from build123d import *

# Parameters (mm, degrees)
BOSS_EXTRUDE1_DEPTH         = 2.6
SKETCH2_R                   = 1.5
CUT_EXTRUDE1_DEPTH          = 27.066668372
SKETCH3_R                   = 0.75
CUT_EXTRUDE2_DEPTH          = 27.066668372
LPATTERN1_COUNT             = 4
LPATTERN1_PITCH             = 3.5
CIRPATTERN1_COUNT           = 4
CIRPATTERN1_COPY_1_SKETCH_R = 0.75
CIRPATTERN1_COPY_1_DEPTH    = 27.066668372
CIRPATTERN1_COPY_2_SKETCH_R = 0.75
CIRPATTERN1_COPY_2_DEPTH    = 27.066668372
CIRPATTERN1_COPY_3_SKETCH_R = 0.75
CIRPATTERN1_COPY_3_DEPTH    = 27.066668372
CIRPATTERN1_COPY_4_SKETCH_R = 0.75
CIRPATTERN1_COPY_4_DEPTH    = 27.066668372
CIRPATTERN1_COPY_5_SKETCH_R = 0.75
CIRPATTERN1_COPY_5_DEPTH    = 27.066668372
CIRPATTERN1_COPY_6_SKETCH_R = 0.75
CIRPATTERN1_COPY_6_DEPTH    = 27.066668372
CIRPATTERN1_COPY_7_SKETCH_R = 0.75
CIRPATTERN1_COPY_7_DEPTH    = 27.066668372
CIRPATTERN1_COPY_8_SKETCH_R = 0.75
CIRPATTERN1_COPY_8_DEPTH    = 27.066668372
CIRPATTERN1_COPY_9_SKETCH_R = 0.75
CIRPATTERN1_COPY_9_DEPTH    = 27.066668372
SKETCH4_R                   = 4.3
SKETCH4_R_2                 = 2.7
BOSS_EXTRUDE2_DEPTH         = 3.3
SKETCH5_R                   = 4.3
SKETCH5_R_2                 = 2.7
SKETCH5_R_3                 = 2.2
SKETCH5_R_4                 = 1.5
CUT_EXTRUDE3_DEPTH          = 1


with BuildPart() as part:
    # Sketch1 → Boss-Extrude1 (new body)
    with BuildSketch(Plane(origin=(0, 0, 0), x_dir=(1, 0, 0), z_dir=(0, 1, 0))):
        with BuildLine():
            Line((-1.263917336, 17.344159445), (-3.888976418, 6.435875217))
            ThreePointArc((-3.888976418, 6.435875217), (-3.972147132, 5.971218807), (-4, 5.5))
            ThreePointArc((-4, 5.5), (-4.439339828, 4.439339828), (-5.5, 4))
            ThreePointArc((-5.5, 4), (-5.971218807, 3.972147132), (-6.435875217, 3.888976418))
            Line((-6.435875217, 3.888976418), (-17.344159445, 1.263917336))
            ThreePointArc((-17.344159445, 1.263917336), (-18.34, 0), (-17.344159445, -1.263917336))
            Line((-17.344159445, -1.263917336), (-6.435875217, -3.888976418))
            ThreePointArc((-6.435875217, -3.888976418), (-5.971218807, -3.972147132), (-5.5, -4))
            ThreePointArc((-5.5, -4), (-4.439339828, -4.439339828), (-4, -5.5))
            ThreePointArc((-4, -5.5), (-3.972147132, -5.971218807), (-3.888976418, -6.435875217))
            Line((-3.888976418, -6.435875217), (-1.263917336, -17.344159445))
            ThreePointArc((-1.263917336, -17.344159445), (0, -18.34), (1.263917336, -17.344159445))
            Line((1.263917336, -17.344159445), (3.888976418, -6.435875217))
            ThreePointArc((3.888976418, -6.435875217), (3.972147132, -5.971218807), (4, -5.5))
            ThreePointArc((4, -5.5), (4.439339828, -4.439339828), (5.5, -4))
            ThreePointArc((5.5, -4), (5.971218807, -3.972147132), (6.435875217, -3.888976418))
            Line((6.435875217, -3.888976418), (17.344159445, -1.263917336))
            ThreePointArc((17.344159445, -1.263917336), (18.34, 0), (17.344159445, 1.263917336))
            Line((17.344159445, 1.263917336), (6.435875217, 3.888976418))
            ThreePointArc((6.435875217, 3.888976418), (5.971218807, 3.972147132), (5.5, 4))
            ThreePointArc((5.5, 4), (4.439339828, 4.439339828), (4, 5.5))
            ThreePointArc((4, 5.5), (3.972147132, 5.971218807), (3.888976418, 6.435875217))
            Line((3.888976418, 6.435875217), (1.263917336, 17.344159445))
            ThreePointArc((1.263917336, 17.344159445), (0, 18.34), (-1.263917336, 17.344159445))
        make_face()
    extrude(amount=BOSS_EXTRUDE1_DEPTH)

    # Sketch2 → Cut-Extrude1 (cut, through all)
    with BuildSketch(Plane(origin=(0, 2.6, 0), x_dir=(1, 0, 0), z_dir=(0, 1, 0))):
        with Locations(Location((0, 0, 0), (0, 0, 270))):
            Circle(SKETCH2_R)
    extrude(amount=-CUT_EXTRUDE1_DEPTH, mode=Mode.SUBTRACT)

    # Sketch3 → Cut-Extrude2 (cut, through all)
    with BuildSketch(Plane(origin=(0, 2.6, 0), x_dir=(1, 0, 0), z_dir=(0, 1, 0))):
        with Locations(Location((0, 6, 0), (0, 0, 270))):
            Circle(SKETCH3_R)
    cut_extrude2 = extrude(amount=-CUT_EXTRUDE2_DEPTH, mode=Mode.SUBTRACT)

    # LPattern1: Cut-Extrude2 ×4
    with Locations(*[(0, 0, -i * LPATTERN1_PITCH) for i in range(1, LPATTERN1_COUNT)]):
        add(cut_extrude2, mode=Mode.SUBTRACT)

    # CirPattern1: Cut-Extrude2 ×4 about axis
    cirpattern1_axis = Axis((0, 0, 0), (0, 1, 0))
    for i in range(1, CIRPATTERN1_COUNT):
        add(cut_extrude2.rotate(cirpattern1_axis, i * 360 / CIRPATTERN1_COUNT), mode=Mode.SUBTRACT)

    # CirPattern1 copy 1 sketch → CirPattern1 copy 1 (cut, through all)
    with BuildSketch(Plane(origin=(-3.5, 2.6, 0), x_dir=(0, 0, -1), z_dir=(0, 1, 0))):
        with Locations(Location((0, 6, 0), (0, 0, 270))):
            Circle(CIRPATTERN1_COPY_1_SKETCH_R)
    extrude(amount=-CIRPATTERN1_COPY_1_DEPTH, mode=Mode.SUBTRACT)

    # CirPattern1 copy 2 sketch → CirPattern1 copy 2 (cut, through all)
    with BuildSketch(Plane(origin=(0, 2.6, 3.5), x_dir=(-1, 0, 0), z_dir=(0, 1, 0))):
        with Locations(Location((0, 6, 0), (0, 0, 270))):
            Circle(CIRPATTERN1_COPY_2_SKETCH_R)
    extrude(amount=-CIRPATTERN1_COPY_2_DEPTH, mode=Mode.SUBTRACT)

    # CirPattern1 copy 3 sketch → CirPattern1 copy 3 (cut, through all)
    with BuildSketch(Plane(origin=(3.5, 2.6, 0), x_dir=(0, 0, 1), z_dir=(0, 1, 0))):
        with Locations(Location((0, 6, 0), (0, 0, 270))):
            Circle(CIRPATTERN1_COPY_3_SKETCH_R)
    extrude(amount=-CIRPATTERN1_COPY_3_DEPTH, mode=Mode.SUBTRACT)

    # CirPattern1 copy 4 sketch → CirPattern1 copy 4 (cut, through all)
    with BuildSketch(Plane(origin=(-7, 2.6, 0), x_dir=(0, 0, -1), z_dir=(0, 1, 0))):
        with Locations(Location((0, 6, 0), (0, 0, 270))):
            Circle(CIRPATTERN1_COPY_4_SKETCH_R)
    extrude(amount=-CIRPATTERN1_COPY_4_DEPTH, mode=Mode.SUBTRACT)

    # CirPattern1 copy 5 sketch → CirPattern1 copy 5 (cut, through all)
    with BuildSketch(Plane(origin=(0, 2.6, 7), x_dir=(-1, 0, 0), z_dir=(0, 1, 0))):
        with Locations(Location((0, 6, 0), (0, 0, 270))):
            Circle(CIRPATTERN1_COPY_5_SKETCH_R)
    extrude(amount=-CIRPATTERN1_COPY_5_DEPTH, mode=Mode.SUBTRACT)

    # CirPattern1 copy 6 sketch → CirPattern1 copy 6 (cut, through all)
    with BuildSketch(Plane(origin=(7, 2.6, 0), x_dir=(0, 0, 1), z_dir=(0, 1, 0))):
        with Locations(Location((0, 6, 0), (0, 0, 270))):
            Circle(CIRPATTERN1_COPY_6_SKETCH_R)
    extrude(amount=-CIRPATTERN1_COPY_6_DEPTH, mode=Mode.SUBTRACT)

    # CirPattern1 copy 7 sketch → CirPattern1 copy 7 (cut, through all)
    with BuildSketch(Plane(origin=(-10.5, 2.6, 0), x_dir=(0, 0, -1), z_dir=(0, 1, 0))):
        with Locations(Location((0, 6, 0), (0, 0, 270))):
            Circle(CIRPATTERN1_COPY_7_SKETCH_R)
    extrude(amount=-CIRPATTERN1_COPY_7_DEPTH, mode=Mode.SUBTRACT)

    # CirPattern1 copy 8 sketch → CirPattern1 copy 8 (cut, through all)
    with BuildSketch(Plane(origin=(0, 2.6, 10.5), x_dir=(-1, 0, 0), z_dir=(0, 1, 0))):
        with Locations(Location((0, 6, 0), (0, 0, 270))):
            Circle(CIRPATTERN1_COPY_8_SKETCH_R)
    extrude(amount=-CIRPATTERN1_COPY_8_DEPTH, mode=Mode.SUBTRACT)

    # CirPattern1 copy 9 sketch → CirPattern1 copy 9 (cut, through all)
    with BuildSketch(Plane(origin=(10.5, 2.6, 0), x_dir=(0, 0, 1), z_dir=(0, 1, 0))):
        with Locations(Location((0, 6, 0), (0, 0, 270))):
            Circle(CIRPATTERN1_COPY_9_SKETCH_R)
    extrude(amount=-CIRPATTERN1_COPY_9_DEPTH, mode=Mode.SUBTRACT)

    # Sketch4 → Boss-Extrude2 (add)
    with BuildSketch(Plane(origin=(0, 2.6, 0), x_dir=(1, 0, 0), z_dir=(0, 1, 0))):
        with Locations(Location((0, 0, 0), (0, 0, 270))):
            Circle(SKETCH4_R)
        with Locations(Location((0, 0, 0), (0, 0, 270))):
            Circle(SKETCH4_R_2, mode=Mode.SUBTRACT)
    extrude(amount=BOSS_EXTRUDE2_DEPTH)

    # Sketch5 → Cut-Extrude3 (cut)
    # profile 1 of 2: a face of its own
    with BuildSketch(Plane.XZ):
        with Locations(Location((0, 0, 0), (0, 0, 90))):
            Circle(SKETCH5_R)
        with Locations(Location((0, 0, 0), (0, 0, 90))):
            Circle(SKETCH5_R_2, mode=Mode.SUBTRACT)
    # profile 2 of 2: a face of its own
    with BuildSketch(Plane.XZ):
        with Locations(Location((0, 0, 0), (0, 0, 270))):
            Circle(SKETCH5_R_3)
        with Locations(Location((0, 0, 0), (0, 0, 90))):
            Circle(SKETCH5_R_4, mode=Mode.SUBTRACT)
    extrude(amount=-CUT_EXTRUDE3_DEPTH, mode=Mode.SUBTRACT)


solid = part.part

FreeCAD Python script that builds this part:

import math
import FreeCAD as App
import Part
import Sketcher

doc = App.newDocument("Part")
params = doc.addObject("Spreadsheet::Sheet", "Params")
for row, (alias, value) in enumerate([
    ("sketch1_radius", "4 mm"),
    ("sketch1_radius2", "1.5 mm"),
    ("sketch1_radius3", "1.3 mm"),
    ("pad1_length", "2.6 mm"),
    ("sketch2_diameter", "3 mm"),
    ("sketch3_diameter", "1.5 mm"),
    ("linearpattern_pitch", "3.5 mm"),
    ("sketch4_diameter", "1.5 mm"),
    ("sketch5_diameter", "1.5 mm"),
    ("sketch6_diameter", "1.5 mm"),
    ("sketch7_diameter", "1.5 mm"),
    ("sketch8_diameter", "1.5 mm"),
    ("sketch9_diameter", "1.5 mm"),
    ("sketch10_diameter", "1.5 mm"),
    ("sketch11_diameter", "1.5 mm"),
    ("sketch12_diameter", "1.5 mm"),
    ("sketch13_diameter", "8.6 mm"),
    ("sketch13_diameter2", "5.4 mm"),
    ("pad2_length", "3.3 mm"),
    ("sketch14_diameter", "3 mm"),
    ("sketch14_diameter2", "8.6 mm"),
    ("sketch14_diameter3", "5.4 mm"),
    ("sketch14_diameter4", "4.4 mm"),
    ("pocket12_length", "1 mm"),
], start=1):
    params.set(f"A{row}", alias)
    params.set(f"B{row}", "=" + value)
    params.setAlias(f"B{row}", alias)

body = doc.addObject("PartDesign::Body", "Body")

sketch1 = body.newObject("Sketcher::SketchObject", "Sketch")
sketch1.AttachmentSupport = (doc.getObject("XZ_Plane"), [""])
sketch1.MapMode = "FlatFace"
sketch1.addGeometry([
    Part.LineSegment(App.Vector(-1.3, -17.3, 0), App.Vector(-3.9, -6.4, 0)),
    Part.ArcOfCircle(Part.Circle(App.Vector(0, -5.5, 0), App.Vector(0, 0, 1), 4), math.radians(180), math.radians(193.53)),
    Part.ArcOfCircle(Part.Circle(App.Vector(-5.5, -5.5, 0), App.Vector(0, 0, 1), 1.5), math.radians(0), math.radians(90)),
    Part.ArcOfCircle(Part.Circle(App.Vector(-5.5, 0, 0), App.Vector(0, 0, 1), 4), math.radians(-103.53), math.radians(-90)),
    Part.LineSegment(App.Vector(-6.4, -3.9, 0), App.Vector(-17.3, -1.3, 0)),
    Part.ArcOfCircle(Part.Circle(App.Vector(-17, 0, 0), App.Vector(0, 0, 1), 1.3), math.radians(104), math.radians(256)),
    Part.LineSegment(App.Vector(-17.3, 1.3, 0), App.Vector(-6.4, 3.9, 0)),
    Part.ArcOfCircle(Part.Circle(App.Vector(-5.5, 0, 0), App.Vector(0, 0, 1), 4), math.radians(90), math.radians(103.53)),
    Part.ArcOfCircle(Part.Circle(App.Vector(-5.5, 5.5, 0), App.Vector(0, 0, 1), 1.5), math.radians(-90), math.radians(0)),
    Part.ArcOfCircle(Part.Circle(App.Vector(0, 5.5, 0), App.Vector(0, 0, 1), 4), math.radians(166.47), math.radians(180)),
    Part.LineSegment(App.Vector(-3.9, 6.4, 0), App.Vector(-1.3, 17.3, 0)),
    Part.ArcOfCircle(Part.Circle(App.Vector(0, 17, 0), App.Vector(0, 0, 1), 1.3), math.radians(14), math.radians(166)),
    Part.LineSegment(App.Vector(1.3, 17.3, 0), App.Vector(3.9, 6.4, 0)),
    Part.ArcOfCircle(Part.Circle(App.Vector(0, 5.5, 0), App.Vector(0, 0, 1), 4), math.radians(0), math.radians(13.53)),
    Part.ArcOfCircle(Part.Circle(App.Vector(5.5, 5.5, 0), App.Vector(0, 0, 1), 1.5), math.radians(180), math.radians(270)),
    Part.ArcOfCircle(Part.Circle(App.Vector(5.5, 0, 0), App.Vector(0, 0, 1), 4), math.radians(76.47), math.radians(90)),
    Part.LineSegment(App.Vector(6.4, 3.9, 0), App.Vector(17.3, 1.3, 0)),
    Part.ArcOfCircle(Part.Circle(App.Vector(17, 0, 0), App.Vector(0, 0, 1), 1.3), math.radians(-76), math.radians(76)),
    Part.LineSegment(App.Vector(17.3, -1.3, 0), App.Vector(6.4, -3.9, 0)),
    Part.ArcOfCircle(Part.Circle(App.Vector(5.5, 0, 0), App.Vector(0, 0, 1), 4), math.radians(-90), math.radians(-76.47)),
    Part.ArcOfCircle(Part.Circle(App.Vector(5.5, -5.5, 0), App.Vector(0, 0, 1), 1.5), math.radians(90), math.radians(180)),
    Part.ArcOfCircle(Part.Circle(App.Vector(0, -5.5, 0), App.Vector(0, 0, 1), 4), math.radians(-13.53), math.radians(0)),
    Part.LineSegment(App.Vector(3.9, -6.4, 0), App.Vector(1.3, -17.3, 0)),
    Part.ArcOfCircle(Part.Circle(App.Vector(0, -17, 0), App.Vector(0, 0, 1), 1.3), math.radians(-166), math.radians(-14)),
], False)
sketch1.addConstraint([
    Sketcher.Constraint("Tangent", 0, 2, 1, 2),
    Sketcher.Constraint("Tangent", 1, 1, 2, 1),
    Sketcher.Constraint("Tangent", 2, 2, 3, 2),
    Sketcher.Constraint("Tangent", 3, 1, 4, 1),
    Sketcher.Constraint("Tangent", 4, 2, 5, 2),
    Sketcher.Constraint("Tangent", 5, 1, 6, 1),
    Sketcher.Constraint("Tangent", 6, 2, 7, 2),
    Sketcher.Constraint("Tangent", 7, 1, 8, 1),
    Sketcher.Constraint("Tangent", 8, 2, 9, 2),
    Sketcher.Constraint("Tangent", 9, 1, 10, 1),
    Sketcher.Constraint("Tangent", 10, 2, 11, 2),
    Sketcher.Constraint("Tangent", 11, 1, 12, 1),
    Sketcher.Constraint("Tangent", 12, 2, 13, 2),
    Sketcher.Constraint("Tangent", 13, 1, 14, 1),
    Sketcher.Constraint("Tangent", 14, 2, 15, 2),
    Sketcher.Constraint("Tangent", 15, 1, 16, 1),
    Sketcher.Constraint("Tangent", 16, 2, 17, 2),
    Sketcher.Constraint("Tangent", 17, 1, 18, 1),
    Sketcher.Constraint("Tangent", 18, 2, 19, 2),
    Sketcher.Constraint("Tangent", 19, 1, 20, 1),
    Sketcher.Constraint("Tangent", 20, 2, 21, 2),
    Sketcher.Constraint("Tangent", 21, 1, 22, 1),
    Sketcher.Constraint("Tangent", 22, 2, 23, 2),
    Sketcher.Constraint("Tangent", 23, 1, 0, 1),
    Sketcher.Constraint("Coincident", 7, 3, 3, 3),
    Sketcher.Constraint("Coincident", 13, 3, 9, 3),
    Sketcher.Constraint("Coincident", 19, 3, 15, 3),
    Sketcher.Constraint("Coincident", 21, 3, 1, 3),
    Sketcher.Constraint("Equal", 1, 3),
    Sketcher.Constraint("Equal", 3, 7),
    Sketcher.Constraint("Equal", 2, 8),
    Sketcher.Constraint("Equal", 7, 9),
    Sketcher.Constraint("Equal", 5, 11),
    Sketcher.Constraint("Equal", 9, 13),
    Sketcher.Constraint("Equal", 8, 14),
    Sketcher.Constraint("Equal", 13, 15),
    Sketcher.Constraint("Equal", 11, 17),
    Sketcher.Constraint("Equal", 15, 19),
    Sketcher.Constraint("Equal", 14, 20),
    Sketcher.Constraint("Equal", 19, 21),
    Sketcher.Constraint("Equal", 17, 23),
    Sketcher.Constraint("Symmetric", 1, 3, 9, 3, -1, 1),
    Sketcher.Constraint("Symmetric", 3, 3, 15, 3, -1, 1),
    Sketcher.Constraint("Symmetric", 5, 3, 17, 3, -1, 1),
    Sketcher.Constraint("Symmetric", 11, 3, 23, 3, -1, 1),
    Sketcher.Constraint("Symmetric", 8, 3, 14, 3, -2),
    Sketcher.Constraint("PointOnObject", 5, 3, -1),
    Sketcher.Constraint("PointOnObject", 11, 3, -2),
    Sketcher.Constraint("Perpendicular", 0, 6),
    Sketcher.Constraint("Horizontal", 1, 3, 2, 3),
    Sketcher.Constraint("Vertical", 2, 3, 3, 3),
    Sketcher.Constraint("Radius", 1, 4.0),
    Sketcher.Constraint("Radius", 2, 1.5),
    Sketcher.Constraint("Radius", 5, 1.3),
    Sketcher.Constraint("DistanceX", 5, 3, -1, 1, 17.04),
])
sketch1.setExpression("Constraints[51]", "Params.sketch1_radius")
sketch1.setExpression("Constraints[52]", "Params.sketch1_radius2")
sketch1.setExpression("Constraints[53]", "Params.sketch1_radius3")
pad1 = body.newObject("PartDesign::Pad", "Pad")
pad1.Profile = sketch1
pad1.setExpression("Length", "Params.pad1_length")
pad1.Reversed = True

sketch2 = body.newObject("Sketcher::SketchObject", "Sketch001")
sketch2.AttachmentSupport = (doc.getObject("XZ_Plane"), [""])
sketch2.MapMode = "FlatFace"
sketch2.AttachmentOffset = App.Placement(App.Vector(0, 0, -2.6), App.Rotation())
sketch2.addGeometry(Part.Circle(App.Vector(0, 0, 0), App.Vector(0, 0, 1), 1.5), False)
sketch2.addConstraint([
    Sketcher.Constraint("Coincident", 0, 3, -1, 1),
    Sketcher.Constraint("Diameter", 0, 3.0),
])
sketch2.setExpression("Constraints[1]", "Params.sketch2_diameter")
pocket1 = body.newObject("PartDesign::Pocket", "Pocket")
pocket1.Profile = sketch2
pocket1.Type = "ThroughAll"
pocket1.Reversed = True

sketch3 = body.newObject("Sketcher::SketchObject", "Sketch002")
sketch3.AttachmentSupport = (doc.getObject("XZ_Plane"), [""])
sketch3.MapMode = "FlatFace"
sketch3.AttachmentOffset = App.Placement(App.Vector(0, 0, -2.6), App.Rotation())
sketch3.addGeometry(Part.Circle(App.Vector(0, -6, 0), App.Vector(0, 0, 1), 0.8), False)
sketch3.addConstraint([
    Sketcher.Constraint("PointOnObject", 0, 3, -2),
    Sketcher.Constraint("Diameter", 0, 1.5),
    Sketcher.Constraint("DistanceY", 0, 3, -1, 1, 6.0),
])
sketch3.setExpression("Constraints[1]", "Params.sketch3_diameter")
pocket2 = body.newObject("PartDesign::Pocket", "Pocket001")
pocket2.Profile = sketch3
pocket2.Type = "ThroughAll"
pocket2.Reversed = True
doc.recompute()

linearpattern = body.newObject("PartDesign::LinearPattern", "LinearPattern")
linearpattern.Originals = [pocket2]
linearpattern.Direction = (doc.getObject("Z_Axis"), [""])
linearpattern.Mode = "offset"
linearpattern.setExpression("Offset", "Params.linearpattern_pitch")
linearpattern.Occurrences = 4
linearpattern.Reversed = True
body.Tip = linearpattern
doc.recompute()

polarpattern = body.newObject("PartDesign::PolarPattern", "PolarPattern")
polarpattern.Originals = [pocket2]
polarpattern.Axis = (doc.getObject("Y_Axis"), [""])
polarpattern.Angle = 360
polarpattern.Occurrences = 4
body.Tip = polarpattern

sketch4 = body.newObject("Sketcher::SketchObject", "Sketch003")
sketch4.AttachmentSupport = (doc.getObject("XZ_Plane"), [""])
sketch4.MapMode = "FlatFace"
sketch4.AttachmentOffset = App.Placement(App.Vector(0, 0, -2.6), App.Rotation())
sketch4.addGeometry(Part.Circle(App.Vector(-9.5, 0, 0), App.Vector(0, 0, 1), 0.8), False)
sketch4.addConstraint([
    Sketcher.Constraint("PointOnObject", 0, 3, -1),
    Sketcher.Constraint("Diameter", 0, 1.5),
    Sketcher.Constraint("DistanceX", 0, 3, -1, 1, 9.5),
])
sketch4.setExpression("Constraints[1]", "Params.sketch4_diameter")
pocket3 = body.newObject("PartDesign::Pocket", "Pocket002")
pocket3.Profile = sketch4
pocket3.Type = "ThroughAll"
pocket3.Reversed = True

sketch5 = body.newObject("Sketcher::SketchObject", "Sketch004")
sketch5.AttachmentSupport = (doc.getObject("XZ_Plane"), [""])
sketch5.MapMode = "FlatFace"
sketch5.AttachmentOffset = App.Placement(App.Vector(0, 0, -2.6), App.Rotation())
sketch5.addGeometry(Part.Circle(App.Vector(0, 9.5, 0), App.Vector(0, 0, 1), 0.8), False)
sketch5.addConstraint([
    Sketcher.Constraint("PointOnObject", 0, 3, -2),
    Sketcher.Constraint("Diameter", 0, 1.5),
    Sketcher.Constraint("DistanceY", -1, 1, 0, 3, 9.5),
])
sketch5.setExpression("Constraints[1]", "Params.sketch5_diameter")
pocket4 = body.newObject("PartDesign::Pocket", "Pocket003")
pocket4.Profile = sketch5
pocket4.Type = "ThroughAll"
pocket4.Reversed = True

sketch6 = body.newObject("Sketcher::SketchObject", "Sketch005")
sketch6.AttachmentSupport = (doc.getObject("XZ_Plane"), [""])
sketch6.MapMode = "FlatFace"
sketch6.AttachmentOffset = App.Placement(App.Vector(0, 0, -2.6), App.Rotation())
sketch6.addGeometry(Part.Circle(App.Vector(9.5, 0, 0), App.Vector(0, 0, 1), 0.8), False)
sketch6.addConstraint([
    Sketcher.Constraint("PointOnObject", 0, 3, -1),
    Sketcher.Constraint("Diameter", 0, 1.5),
    Sketcher.Constraint("DistanceX", -1, 1, 0, 3, 9.5),
])
sketch6.setExpression("Constraints[1]", "Params.sketch6_diameter")
pocket5 = body.newObject("PartDesign::Pocket", "Pocket004")
pocket5.Profile = sketch6
pocket5.Type = "ThroughAll"
pocket5.Reversed = True

sketch7 = body.newObject("Sketcher::SketchObject", "Sketch006")
sketch7.AttachmentSupport = (doc.getObject("XZ_Plane"), [""])
sketch7.MapMode = "FlatFace"
sketch7.AttachmentOffset = App.Placement(App.Vector(0, 0, -2.6), App.Rotation())
sketch7.addGeometry(Part.Circle(App.Vector(-13, 0, 0), App.Vector(0, 0, 1), 0.8), False)
sketch7.addConstraint([
    Sketcher.Constraint("PointOnObject", 0, 3, -1),
    Sketcher.Constraint("Diameter", 0, 1.5),
    Sketcher.Constraint("DistanceX", 0, 3, -1, 1, 13.0),
])
sketch7.setExpression("Constraints[1]", "Params.sketch7_diameter")
pocket6 = body.newObject("PartDesign::Pocket", "Pocket005")
pocket6.Profile = sketch7
pocket6.Type = "ThroughAll"
pocket6.Reversed = True

sketch8 = body.newObject("Sketcher::SketchObject", "Sketch007")
sketch8.AttachmentSupport = (doc.getObject("XZ_Plane"), [""])
sketch8.MapMode = "FlatFace"
sketch8.AttachmentOffset = App.Placement(App.Vector(0, 0, -2.6), App.Rotation())
sketch8.addGeometry(Part.Circle(App.Vector(0, 13, 0), App.Vector(0, 0, 1), 0.8), False)
sketch8.addConstraint([
    Sketcher.Constraint("PointOnObject", 0, 3, -2),
    Sketcher.Constraint("Diameter", 0, 1.5),
    Sketcher.Constraint("DistanceY", -1, 1, 0, 3, 13.0),
])
sketch8.setExpression("Constraints[1]", "Params.sketch8_diameter")
pocket7 = body.newObject("PartDesign::Pocket", "Pocket006")
pocket7.Profile = sketch8
pocket7.Type = "ThroughAll"
pocket7.Reversed = True

sketch9 = body.newObject("Sketcher::SketchObject", "Sketch008")
sketch9.AttachmentSupport = (doc.getObject("XZ_Plane"), [""])
sketch9.MapMode = "FlatFace"
sketch9.AttachmentOffset = App.Placement(App.Vector(0, 0, -2.6), App.Rotation())
sketch9.addGeometry(Part.Circle(App.Vector(13, 0, 0), App.Vector(0, 0, 1), 0.8), False)
sketch9.addConstraint([
    Sketcher.Constraint("PointOnObject", 0, 3, -1),
    Sketcher.Constraint("Diameter", 0, 1.5),
    Sketcher.Constraint("DistanceX", -1, 1, 0, 3, 13.0),
])
sketch9.setExpression("Constraints[1]", "Params.sketch9_diameter")
pocket8 = body.newObject("PartDesign::Pocket", "Pocket007")
pocket8.Profile = sketch9
pocket8.Type = "ThroughAll"
pocket8.Reversed = True

sketch10 = body.newObject("Sketcher::SketchObject", "Sketch009")
sketch10.AttachmentSupport = (doc.getObject("XZ_Plane"), [""])
sketch10.MapMode = "FlatFace"
sketch10.AttachmentOffset = App.Placement(App.Vector(0, 0, -2.6), App.Rotation())
sketch10.addGeometry(Part.Circle(App.Vector(-16.5, 0, 0), App.Vector(0, 0, 1), 0.8), False)
sketch10.addConstraint([
    Sketcher.Constraint("PointOnObject", 0, 3, -1),
    Sketcher.Constraint("Diameter", 0, 1.5),
    Sketcher.Constraint("DistanceX", 0, 3, -1, 1, 16.5),
])
sketch10.setExpression("Constraints[1]", "Params.sketch10_diameter")
pocket9 = body.newObject("PartDesign::Pocket", "Pocket008")
pocket9.Profile = sketch10
pocket9.Type = "ThroughAll"
pocket9.Reversed = True

sketch11 = body.newObject("Sketcher::SketchObject", "Sketch010")
sketch11.AttachmentSupport = (doc.getObject("XZ_Plane"), [""])
sketch11.MapMode = "FlatFace"
sketch11.AttachmentOffset = App.Placement(App.Vector(0, 0, -2.6), App.Rotation())
sketch11.addGeometry(Part.Circle(App.Vector(0, 16.5, 0), App.Vector(0, 0, 1), 0.8), False)
sketch11.addConstraint([
    Sketcher.Constraint("PointOnObject", 0, 3, -2),
    Sketcher.Constraint("Diameter", 0, 1.5),
    Sketcher.Constraint("DistanceY", -1, 1, 0, 3, 16.5),
])
sketch11.setExpression("Constraints[1]", "Params.sketch11_diameter")
pocket10 = body.newObject("PartDesign::Pocket", "Pocket009")
pocket10.Profile = sketch11
pocket10.Type = "ThroughAll"
pocket10.Reversed = True

sketch12 = body.newObject("Sketcher::SketchObject", "Sketch011")
sketch12.AttachmentSupport = (doc.getObject("XZ_Plane"), [""])
sketch12.MapMode = "FlatFace"
sketch12.AttachmentOffset = App.Placement(App.Vector(0, 0, -2.6), App.Rotation())
sketch12.addGeometry(Part.Circle(App.Vector(16.5, 0, 0), App.Vector(0, 0, 1), 0.8), False)
sketch12.addConstraint([
    Sketcher.Constraint("PointOnObject", 0, 3, -1),
    Sketcher.Constraint("Diameter", 0, 1.5),
    Sketcher.Constraint("DistanceX", -1, 1, 0, 3, 16.5),
])
sketch12.setExpression("Constraints[1]", "Params.sketch12_diameter")
pocket11 = body.newObject("PartDesign::Pocket", "Pocket010")
pocket11.Profile = sketch12
pocket11.Type = "ThroughAll"
pocket11.Reversed = True

sketch13 = body.newObject("Sketcher::SketchObject", "Sketch012")
sketch13.AttachmentSupport = (doc.getObject("XZ_Plane"), [""])
sketch13.MapMode = "FlatFace"
sketch13.AttachmentOffset = App.Placement(App.Vector(0, 0, -2.6), App.Rotation())
sketch13.addGeometry([
    Part.Circle(App.Vector(0, 0, 0), App.Vector(0, 0, 1), 4.3),
    Part.Circle(App.Vector(0, 0, 0), App.Vector(0, 0, 1), 2.7),
], False)
sketch13.addConstraint([
    Sketcher.Constraint("Coincident", 0, 3, -1, 1),
    Sketcher.Constraint("Coincident", 1, 3, -1, 1),
    Sketcher.Constraint("Diameter", 0, 8.6),
    Sketcher.Constraint("Diameter", 1, 5.4),
])
sketch13.setExpression("Constraints[2]", "Params.sketch13_diameter")
sketch13.setExpression("Constraints[3]", "Params.sketch13_diameter2")
pad2 = body.newObject("PartDesign::Pad", "Pad001")
pad2.Profile = sketch13
pad2.setExpression("Length", "Params.pad2_length")
pad2.Reversed = True

sketch14 = body.newObject("Sketcher::SketchObject", "Sketch013")
sketch14.AttachmentSupport = (doc.getObject("XZ_Plane"), [""])
sketch14.MapMode = "FlatFace"
sketch14.addGeometry([
    Part.Circle(App.Vector(0, 0, 0), App.Vector(0, 0, 1), 4.3),
    Part.Circle(App.Vector(0, 0, 0), App.Vector(0, 0, 1), 2.7),
    Part.Circle(App.Vector(0, 0, 0), App.Vector(0, 0, 1), 2.2),
    Part.Circle(App.Vector(0, 0, 0), App.Vector(0, 0, 1), 1.5),
], False)
sketch14.addConstraint([
    Sketcher.Constraint("Coincident", 0, 3, -1, 1),
    Sketcher.Constraint("Coincident", 1, 3, -1, 1),
    Sketcher.Constraint("Coincident", 2, 3, -1, 1),
    Sketcher.Constraint("Coincident", 3, 3, -1, 1),
    Sketcher.Constraint("Diameter", 3, 3.0),
    Sketcher.Constraint("Diameter", 0, 8.6),
    Sketcher.Constraint("Diameter", 1, 5.4),
    Sketcher.Constraint("Diameter", 2, 4.4),
])
sketch14.setExpression("Constraints[4]", "Params.sketch14_diameter")
sketch14.setExpression("Constraints[5]", "Params.sketch14_diameter2")
sketch14.setExpression("Constraints[6]", "Params.sketch14_diameter3")
sketch14.setExpression("Constraints[7]", "Params.sketch14_diameter4")
pocket12 = body.newObject("PartDesign::Pocket", "Pocket011")
pocket12.Profile = sketch14
pocket12.setExpression("Length", "Params.pocket12_length")

doc.recompute()
